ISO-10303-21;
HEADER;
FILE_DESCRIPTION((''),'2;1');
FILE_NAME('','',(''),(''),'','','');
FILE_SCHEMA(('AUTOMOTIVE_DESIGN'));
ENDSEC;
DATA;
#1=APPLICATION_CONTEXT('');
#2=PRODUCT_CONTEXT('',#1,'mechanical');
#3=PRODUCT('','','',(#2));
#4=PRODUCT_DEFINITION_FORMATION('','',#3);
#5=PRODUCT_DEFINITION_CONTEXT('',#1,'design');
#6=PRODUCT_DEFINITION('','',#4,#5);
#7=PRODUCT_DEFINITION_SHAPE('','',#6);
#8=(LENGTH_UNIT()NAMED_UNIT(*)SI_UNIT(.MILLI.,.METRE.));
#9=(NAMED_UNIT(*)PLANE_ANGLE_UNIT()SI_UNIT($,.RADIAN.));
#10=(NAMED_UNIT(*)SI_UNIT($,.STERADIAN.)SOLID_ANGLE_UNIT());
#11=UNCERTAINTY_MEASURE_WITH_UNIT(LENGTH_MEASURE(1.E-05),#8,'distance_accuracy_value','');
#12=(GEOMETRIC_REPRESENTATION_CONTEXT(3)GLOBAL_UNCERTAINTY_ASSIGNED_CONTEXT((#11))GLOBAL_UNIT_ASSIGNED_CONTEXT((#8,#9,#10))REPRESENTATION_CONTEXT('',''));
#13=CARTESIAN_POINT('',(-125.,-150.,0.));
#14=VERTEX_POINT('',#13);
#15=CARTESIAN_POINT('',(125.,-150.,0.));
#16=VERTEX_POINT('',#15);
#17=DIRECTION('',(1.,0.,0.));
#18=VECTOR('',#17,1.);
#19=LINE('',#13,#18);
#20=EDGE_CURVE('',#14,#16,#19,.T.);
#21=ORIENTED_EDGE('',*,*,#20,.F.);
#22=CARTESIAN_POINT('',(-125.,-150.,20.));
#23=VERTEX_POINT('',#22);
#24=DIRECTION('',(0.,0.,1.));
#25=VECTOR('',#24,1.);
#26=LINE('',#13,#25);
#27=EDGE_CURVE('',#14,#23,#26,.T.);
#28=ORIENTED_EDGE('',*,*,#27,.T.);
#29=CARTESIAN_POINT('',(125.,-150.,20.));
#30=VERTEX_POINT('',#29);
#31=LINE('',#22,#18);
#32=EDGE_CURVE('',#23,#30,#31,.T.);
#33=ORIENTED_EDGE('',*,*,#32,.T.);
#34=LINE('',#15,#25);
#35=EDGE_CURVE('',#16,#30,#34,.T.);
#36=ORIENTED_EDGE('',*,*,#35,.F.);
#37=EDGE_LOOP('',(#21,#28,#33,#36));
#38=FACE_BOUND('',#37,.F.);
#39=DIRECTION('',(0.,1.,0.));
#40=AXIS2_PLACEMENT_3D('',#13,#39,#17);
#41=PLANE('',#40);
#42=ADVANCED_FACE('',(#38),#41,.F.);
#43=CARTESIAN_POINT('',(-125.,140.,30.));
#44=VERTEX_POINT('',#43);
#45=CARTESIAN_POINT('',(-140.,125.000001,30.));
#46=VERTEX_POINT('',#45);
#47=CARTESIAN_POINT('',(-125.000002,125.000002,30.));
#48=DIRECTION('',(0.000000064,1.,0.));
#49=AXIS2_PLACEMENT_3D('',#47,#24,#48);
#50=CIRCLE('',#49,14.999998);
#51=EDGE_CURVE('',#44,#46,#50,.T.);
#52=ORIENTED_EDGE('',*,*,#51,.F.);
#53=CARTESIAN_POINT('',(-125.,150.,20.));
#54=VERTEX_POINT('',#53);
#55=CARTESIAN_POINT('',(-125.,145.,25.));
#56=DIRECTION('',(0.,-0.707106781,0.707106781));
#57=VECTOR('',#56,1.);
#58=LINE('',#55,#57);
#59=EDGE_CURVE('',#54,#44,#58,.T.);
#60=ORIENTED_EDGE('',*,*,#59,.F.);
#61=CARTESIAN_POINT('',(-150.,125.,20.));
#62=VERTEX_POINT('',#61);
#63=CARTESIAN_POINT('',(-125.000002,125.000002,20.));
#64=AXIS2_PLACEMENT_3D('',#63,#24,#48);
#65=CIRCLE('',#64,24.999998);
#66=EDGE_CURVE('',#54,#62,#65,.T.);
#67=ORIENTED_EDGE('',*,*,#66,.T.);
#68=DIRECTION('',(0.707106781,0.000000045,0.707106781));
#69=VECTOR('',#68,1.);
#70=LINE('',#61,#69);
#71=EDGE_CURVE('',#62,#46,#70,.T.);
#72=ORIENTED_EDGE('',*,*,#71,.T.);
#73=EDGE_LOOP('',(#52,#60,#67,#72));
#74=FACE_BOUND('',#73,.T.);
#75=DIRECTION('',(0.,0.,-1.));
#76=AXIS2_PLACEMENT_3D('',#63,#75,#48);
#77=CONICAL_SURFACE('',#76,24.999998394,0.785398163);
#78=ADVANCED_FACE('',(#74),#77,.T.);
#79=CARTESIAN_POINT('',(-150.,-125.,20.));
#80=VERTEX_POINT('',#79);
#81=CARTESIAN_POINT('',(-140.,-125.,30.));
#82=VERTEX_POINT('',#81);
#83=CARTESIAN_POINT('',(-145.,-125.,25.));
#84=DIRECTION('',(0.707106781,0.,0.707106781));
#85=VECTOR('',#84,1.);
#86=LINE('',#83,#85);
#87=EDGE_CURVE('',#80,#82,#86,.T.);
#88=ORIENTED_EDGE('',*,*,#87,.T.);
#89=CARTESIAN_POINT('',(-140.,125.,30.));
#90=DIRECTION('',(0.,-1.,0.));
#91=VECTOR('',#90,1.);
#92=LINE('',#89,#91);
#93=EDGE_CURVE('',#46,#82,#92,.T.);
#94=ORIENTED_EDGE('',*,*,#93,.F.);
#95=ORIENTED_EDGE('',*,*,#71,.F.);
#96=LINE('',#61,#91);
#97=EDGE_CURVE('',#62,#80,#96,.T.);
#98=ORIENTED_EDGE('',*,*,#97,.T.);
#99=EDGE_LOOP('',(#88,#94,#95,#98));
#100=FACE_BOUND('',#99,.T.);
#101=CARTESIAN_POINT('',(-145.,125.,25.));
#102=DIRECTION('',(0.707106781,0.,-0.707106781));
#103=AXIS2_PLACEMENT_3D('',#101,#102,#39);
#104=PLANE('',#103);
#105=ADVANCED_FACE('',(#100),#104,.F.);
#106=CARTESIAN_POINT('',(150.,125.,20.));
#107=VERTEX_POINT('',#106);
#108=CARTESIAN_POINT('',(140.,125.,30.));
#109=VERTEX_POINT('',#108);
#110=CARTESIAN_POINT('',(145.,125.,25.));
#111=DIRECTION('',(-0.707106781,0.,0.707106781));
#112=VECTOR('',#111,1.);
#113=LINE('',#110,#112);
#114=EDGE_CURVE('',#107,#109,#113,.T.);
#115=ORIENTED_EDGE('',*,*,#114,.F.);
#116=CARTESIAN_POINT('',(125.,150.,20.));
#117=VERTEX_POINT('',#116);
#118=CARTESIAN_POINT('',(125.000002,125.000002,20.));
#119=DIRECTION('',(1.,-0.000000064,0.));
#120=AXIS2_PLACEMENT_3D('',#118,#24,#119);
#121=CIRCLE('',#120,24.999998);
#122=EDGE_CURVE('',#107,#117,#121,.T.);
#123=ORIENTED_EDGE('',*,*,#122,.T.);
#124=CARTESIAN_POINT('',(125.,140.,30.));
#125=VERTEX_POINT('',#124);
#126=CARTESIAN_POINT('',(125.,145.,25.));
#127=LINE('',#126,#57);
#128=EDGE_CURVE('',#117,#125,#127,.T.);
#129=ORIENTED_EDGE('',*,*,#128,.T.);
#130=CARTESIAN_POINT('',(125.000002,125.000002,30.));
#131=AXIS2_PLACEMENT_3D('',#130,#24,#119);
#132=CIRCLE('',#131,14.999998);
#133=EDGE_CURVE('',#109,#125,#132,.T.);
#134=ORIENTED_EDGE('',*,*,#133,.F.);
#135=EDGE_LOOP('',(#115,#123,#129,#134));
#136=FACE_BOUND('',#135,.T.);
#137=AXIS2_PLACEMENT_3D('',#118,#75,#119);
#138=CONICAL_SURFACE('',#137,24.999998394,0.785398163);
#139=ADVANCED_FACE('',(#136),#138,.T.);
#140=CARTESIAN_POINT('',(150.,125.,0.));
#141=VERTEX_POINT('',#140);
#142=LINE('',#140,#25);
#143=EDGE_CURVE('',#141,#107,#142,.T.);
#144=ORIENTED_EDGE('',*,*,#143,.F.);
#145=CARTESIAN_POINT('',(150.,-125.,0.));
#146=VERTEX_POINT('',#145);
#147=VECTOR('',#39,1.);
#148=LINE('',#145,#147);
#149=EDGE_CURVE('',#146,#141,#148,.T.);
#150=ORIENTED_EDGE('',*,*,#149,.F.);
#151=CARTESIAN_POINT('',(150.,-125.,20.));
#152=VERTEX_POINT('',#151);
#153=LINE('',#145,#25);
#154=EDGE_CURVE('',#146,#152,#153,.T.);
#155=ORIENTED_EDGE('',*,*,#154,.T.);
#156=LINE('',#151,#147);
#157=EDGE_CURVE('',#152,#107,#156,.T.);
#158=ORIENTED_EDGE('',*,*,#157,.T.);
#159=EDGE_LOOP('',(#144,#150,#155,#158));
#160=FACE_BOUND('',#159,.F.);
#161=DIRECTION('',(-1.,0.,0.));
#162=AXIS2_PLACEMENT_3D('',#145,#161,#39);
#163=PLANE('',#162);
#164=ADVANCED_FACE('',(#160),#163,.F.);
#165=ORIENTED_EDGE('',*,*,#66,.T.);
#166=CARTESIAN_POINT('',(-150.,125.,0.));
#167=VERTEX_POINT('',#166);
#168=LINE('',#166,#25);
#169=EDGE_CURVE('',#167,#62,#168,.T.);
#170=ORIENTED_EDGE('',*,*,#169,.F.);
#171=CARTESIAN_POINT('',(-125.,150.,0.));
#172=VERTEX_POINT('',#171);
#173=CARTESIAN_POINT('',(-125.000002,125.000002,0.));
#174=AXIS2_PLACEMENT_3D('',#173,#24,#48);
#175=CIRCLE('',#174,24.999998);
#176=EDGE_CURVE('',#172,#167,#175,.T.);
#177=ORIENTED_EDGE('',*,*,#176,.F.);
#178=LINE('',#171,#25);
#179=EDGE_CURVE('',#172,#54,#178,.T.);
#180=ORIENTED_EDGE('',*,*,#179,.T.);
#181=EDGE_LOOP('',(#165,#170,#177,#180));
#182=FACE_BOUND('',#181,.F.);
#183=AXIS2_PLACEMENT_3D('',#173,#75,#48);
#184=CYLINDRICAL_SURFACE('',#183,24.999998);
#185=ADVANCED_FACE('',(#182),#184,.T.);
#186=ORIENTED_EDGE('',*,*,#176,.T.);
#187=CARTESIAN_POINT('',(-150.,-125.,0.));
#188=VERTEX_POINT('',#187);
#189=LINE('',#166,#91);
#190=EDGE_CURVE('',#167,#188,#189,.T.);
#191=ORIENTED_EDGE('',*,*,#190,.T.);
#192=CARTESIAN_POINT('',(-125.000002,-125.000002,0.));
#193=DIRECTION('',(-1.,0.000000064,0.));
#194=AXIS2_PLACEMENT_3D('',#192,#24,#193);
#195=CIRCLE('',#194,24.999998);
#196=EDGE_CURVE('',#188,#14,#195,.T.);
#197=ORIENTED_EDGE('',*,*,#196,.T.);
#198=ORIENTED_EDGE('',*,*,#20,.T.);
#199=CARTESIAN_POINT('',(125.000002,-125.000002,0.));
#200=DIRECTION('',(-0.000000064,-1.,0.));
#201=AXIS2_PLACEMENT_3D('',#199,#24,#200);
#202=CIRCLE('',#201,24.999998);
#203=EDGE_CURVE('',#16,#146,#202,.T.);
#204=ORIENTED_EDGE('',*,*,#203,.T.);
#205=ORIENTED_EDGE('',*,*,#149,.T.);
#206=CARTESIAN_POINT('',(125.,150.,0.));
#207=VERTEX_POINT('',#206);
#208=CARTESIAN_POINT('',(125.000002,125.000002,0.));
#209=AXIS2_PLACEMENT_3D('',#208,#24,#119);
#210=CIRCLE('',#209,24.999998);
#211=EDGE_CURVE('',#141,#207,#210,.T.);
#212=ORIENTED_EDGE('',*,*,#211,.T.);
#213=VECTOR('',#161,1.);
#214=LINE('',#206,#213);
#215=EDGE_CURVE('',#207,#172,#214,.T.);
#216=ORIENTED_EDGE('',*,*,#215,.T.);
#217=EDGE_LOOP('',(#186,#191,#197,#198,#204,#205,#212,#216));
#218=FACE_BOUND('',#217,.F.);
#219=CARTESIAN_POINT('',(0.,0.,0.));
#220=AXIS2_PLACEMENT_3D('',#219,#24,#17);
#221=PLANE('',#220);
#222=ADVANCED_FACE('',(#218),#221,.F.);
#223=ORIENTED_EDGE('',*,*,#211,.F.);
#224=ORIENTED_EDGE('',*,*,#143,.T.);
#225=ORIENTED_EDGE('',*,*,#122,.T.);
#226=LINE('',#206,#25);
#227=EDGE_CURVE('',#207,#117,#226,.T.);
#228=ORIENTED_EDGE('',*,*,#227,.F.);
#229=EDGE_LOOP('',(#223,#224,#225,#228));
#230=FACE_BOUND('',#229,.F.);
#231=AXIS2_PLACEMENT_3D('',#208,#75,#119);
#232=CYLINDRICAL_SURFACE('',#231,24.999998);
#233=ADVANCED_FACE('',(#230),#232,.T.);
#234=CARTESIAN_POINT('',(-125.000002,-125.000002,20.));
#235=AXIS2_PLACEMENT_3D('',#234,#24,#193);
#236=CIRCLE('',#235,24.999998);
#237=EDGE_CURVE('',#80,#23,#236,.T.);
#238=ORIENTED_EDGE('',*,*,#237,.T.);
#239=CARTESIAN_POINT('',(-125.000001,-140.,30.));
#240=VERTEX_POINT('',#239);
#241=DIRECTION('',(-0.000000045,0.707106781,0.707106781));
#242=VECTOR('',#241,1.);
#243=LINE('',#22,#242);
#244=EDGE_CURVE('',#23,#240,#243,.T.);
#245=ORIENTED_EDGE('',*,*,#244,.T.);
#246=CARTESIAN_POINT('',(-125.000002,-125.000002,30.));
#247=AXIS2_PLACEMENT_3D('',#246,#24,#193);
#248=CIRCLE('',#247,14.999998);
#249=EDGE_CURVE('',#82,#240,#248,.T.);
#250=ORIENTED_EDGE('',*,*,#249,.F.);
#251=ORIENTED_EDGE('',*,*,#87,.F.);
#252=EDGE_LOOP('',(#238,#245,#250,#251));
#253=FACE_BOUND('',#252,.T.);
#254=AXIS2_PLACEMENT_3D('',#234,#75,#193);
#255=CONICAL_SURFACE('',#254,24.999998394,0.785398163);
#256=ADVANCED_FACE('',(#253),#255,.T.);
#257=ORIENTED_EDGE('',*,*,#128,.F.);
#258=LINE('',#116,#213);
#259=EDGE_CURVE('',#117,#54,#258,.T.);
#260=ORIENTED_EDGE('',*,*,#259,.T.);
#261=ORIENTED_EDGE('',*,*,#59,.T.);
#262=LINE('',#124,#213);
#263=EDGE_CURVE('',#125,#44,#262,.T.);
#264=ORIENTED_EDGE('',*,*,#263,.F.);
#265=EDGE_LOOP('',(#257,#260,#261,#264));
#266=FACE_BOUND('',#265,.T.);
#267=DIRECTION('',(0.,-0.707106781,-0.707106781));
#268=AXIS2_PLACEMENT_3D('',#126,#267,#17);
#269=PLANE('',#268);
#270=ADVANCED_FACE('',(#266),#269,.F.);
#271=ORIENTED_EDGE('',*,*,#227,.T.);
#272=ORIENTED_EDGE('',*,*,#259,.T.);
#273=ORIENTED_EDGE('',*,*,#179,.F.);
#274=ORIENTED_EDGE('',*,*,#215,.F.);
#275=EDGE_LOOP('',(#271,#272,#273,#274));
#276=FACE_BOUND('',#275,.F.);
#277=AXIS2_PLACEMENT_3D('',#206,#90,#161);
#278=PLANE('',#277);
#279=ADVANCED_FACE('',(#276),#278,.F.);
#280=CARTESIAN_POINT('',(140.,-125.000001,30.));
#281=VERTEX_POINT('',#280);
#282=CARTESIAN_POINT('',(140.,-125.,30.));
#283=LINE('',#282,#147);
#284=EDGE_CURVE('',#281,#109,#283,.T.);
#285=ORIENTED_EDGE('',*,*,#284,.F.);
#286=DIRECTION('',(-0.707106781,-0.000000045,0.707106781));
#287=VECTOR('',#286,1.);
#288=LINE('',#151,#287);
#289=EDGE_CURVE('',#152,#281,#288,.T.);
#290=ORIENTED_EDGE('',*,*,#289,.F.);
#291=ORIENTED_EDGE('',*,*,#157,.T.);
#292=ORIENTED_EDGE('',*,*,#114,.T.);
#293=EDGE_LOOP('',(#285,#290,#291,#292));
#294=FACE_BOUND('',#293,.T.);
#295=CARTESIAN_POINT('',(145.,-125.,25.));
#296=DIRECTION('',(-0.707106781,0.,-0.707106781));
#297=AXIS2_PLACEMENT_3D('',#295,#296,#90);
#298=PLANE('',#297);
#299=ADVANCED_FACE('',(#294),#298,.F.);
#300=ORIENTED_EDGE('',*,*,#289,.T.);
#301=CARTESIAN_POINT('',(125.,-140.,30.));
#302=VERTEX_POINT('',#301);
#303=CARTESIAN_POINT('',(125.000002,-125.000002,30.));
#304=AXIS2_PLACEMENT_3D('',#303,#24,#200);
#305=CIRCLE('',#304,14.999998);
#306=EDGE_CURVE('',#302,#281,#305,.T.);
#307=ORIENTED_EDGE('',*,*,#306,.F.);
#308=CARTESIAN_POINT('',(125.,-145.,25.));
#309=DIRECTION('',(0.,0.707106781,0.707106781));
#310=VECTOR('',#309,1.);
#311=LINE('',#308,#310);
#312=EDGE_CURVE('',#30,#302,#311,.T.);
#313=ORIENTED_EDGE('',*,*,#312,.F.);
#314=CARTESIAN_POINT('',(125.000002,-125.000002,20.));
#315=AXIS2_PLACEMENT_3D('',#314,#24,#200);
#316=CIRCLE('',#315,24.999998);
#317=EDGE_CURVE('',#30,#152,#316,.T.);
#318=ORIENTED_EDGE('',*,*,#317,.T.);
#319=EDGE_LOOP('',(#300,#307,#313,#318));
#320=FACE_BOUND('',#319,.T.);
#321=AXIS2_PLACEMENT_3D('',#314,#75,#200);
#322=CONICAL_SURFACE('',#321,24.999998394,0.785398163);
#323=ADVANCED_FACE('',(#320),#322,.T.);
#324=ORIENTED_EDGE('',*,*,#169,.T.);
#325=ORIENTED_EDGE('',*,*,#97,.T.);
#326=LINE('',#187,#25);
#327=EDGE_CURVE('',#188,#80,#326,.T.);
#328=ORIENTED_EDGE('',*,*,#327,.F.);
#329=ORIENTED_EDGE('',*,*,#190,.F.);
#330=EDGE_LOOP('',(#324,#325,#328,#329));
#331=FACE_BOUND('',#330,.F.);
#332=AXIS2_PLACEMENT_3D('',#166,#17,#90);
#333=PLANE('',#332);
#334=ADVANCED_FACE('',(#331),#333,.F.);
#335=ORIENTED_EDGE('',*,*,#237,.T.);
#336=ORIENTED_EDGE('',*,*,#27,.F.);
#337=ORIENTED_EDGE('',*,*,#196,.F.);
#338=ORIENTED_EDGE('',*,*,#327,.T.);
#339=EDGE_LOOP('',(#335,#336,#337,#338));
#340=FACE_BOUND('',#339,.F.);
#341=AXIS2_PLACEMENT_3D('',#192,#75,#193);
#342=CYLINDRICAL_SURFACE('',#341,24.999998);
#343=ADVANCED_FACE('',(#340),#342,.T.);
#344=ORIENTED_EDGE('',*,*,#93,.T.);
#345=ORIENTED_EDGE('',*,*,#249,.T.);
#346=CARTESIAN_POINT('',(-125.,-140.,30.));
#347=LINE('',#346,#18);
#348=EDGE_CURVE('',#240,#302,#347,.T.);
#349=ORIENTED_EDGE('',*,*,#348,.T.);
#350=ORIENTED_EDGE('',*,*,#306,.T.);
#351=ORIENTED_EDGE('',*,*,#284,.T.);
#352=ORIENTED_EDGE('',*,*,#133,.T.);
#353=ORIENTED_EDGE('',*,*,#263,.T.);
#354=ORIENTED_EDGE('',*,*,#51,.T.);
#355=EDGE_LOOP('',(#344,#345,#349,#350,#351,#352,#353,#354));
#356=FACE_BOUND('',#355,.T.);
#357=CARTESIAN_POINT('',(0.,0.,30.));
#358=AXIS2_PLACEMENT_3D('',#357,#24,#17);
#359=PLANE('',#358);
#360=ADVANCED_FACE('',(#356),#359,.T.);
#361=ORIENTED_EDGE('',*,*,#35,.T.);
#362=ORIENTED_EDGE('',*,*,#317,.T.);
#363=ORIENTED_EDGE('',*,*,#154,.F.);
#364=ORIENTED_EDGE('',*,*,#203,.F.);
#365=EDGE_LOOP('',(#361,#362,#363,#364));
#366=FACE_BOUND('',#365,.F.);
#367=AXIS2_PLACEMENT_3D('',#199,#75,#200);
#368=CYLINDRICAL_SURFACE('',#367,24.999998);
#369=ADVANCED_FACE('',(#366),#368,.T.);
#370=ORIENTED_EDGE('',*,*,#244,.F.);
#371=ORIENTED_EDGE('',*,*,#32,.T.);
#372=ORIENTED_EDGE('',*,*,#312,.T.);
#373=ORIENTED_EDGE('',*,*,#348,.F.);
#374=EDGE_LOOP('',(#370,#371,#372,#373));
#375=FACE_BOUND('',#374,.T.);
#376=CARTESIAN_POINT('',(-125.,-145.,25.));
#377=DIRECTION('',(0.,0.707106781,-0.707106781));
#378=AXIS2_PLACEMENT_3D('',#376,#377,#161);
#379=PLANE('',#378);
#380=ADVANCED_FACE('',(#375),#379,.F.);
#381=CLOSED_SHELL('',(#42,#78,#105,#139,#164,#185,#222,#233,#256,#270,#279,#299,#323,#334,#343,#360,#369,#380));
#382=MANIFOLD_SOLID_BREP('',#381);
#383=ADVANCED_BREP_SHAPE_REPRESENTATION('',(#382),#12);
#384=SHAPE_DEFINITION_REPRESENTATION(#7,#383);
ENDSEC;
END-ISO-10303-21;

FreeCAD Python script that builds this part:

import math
import FreeCAD as App
import Part
import Sketcher
Q = App.Units.Quantity


def edges_at(feature, points):
    """Names of the edges that pass closest to the given points."""
    edges = feature.Shape.Edges
    near = lambda p: min(range(len(edges)), key=lambda i: edges[i].distToShape(Part.Vertex(*p))[0])
    return sorted({f"Edge{near(p) + 1}" for p in points})

doc = App.newDocument("Part")
body = doc.addObject("PartDesign::Body", "Body")

sketch1 = doc.addObject("Sketcher::SketchObject", "Sketch")
body.addObject(sketch1)
sketch1.AttachmentSupport = (doc.XY_Plane, [""])
sketch1.MapMode = "FlatFace"
sketch1.addGeometry([
    Part.LineSegment(App.Vector(125, 150, 0), App.Vector(-125, 150, 0)),
    Part.ArcOfCircle(Part.Circle(App.Vector(-125, 125, 0), App.Vector(0, 0, 1), 25), math.radians(90), math.radians(180)),
    Part.LineSegment(App.Vector(-150, 125, 0), App.Vector(-150, -125, 0)),
    Part.ArcOfCircle(Part.Circle(App.Vector(-125, -125, 0), App.Vector(0, 0, 1), 25), math.radians(180), math.radians(270)),
    Part.LineSegment(App.Vector(-125, -150, 0), App.Vector(125, -150, 0)),
    Part.ArcOfCircle(Part.Circle(App.Vector(125, -125, 0), App.Vector(0, 0, 1), 25), math.radians(-90), math.radians(0)),
    Part.LineSegment(App.Vector(150, -125, 0), App.Vector(150, 125, 0)),
    Part.ArcOfCircle(Part.Circle(App.Vector(125, 125, 0), App.Vector(0, 0, 1), 25), math.radians(0), math.radians(90)),
], False)
sketch1.addConstraint([
    Sketcher.Constraint("Tangent", 0, 2, 1, 1),
    Sketcher.Constraint("Tangent", 1, 2, 2, 1),
    Sketcher.Constraint("Tangent", 2, 2, 3, 1),
    Sketcher.Constraint("Tangent", 3, 2, 4, 1),
    Sketcher.Constraint("Tangent", 4, 2, 5, 1),
    Sketcher.Constraint("Tangent", 5, 2, 6, 1),
    Sketcher.Constraint("Tangent", 6, 2, 7, 1),
    Sketcher.Constraint("Tangent", 7, 2, 0, 1),
    Sketcher.Constraint("Horizontal", 0),
    Sketcher.Constraint("Vertical", 2),
    Sketcher.Constraint("Horizontal", 4),
    Sketcher.Constraint("Vertical", 6),
    Sketcher.Constraint("Equal", 1, 3),
    Sketcher.Constraint("Equal", 3, 5),
    Sketcher.Constraint("Equal", 5, 7),
    Sketcher.Constraint("Symmetric", 1, 3, 5, 3, -1, 1),
    Sketcher.Constraint("Equal", 4, 2),
    Sketcher.Constraint("Radius", 1, Q("24.999998 mm")),
    Sketcher.Constraint("DistanceX", 0, 2, 0, 1, Q("250 mm")),
])
pad1 = doc.addObject("PartDesign::Pad", "Pad")
body.addObject(pad1)
pad1.Profile = sketch1
pad1.Length = 30
doc.recompute()

chamfer = doc.addObject("PartDesign::Chamfer", "Chamfer")
body.addObject(chamfer)
chamfer.Base = (pad1, edges_at(pad1, [(0, 150, 30)]))
chamfer.Size = 10

doc.recompute()
